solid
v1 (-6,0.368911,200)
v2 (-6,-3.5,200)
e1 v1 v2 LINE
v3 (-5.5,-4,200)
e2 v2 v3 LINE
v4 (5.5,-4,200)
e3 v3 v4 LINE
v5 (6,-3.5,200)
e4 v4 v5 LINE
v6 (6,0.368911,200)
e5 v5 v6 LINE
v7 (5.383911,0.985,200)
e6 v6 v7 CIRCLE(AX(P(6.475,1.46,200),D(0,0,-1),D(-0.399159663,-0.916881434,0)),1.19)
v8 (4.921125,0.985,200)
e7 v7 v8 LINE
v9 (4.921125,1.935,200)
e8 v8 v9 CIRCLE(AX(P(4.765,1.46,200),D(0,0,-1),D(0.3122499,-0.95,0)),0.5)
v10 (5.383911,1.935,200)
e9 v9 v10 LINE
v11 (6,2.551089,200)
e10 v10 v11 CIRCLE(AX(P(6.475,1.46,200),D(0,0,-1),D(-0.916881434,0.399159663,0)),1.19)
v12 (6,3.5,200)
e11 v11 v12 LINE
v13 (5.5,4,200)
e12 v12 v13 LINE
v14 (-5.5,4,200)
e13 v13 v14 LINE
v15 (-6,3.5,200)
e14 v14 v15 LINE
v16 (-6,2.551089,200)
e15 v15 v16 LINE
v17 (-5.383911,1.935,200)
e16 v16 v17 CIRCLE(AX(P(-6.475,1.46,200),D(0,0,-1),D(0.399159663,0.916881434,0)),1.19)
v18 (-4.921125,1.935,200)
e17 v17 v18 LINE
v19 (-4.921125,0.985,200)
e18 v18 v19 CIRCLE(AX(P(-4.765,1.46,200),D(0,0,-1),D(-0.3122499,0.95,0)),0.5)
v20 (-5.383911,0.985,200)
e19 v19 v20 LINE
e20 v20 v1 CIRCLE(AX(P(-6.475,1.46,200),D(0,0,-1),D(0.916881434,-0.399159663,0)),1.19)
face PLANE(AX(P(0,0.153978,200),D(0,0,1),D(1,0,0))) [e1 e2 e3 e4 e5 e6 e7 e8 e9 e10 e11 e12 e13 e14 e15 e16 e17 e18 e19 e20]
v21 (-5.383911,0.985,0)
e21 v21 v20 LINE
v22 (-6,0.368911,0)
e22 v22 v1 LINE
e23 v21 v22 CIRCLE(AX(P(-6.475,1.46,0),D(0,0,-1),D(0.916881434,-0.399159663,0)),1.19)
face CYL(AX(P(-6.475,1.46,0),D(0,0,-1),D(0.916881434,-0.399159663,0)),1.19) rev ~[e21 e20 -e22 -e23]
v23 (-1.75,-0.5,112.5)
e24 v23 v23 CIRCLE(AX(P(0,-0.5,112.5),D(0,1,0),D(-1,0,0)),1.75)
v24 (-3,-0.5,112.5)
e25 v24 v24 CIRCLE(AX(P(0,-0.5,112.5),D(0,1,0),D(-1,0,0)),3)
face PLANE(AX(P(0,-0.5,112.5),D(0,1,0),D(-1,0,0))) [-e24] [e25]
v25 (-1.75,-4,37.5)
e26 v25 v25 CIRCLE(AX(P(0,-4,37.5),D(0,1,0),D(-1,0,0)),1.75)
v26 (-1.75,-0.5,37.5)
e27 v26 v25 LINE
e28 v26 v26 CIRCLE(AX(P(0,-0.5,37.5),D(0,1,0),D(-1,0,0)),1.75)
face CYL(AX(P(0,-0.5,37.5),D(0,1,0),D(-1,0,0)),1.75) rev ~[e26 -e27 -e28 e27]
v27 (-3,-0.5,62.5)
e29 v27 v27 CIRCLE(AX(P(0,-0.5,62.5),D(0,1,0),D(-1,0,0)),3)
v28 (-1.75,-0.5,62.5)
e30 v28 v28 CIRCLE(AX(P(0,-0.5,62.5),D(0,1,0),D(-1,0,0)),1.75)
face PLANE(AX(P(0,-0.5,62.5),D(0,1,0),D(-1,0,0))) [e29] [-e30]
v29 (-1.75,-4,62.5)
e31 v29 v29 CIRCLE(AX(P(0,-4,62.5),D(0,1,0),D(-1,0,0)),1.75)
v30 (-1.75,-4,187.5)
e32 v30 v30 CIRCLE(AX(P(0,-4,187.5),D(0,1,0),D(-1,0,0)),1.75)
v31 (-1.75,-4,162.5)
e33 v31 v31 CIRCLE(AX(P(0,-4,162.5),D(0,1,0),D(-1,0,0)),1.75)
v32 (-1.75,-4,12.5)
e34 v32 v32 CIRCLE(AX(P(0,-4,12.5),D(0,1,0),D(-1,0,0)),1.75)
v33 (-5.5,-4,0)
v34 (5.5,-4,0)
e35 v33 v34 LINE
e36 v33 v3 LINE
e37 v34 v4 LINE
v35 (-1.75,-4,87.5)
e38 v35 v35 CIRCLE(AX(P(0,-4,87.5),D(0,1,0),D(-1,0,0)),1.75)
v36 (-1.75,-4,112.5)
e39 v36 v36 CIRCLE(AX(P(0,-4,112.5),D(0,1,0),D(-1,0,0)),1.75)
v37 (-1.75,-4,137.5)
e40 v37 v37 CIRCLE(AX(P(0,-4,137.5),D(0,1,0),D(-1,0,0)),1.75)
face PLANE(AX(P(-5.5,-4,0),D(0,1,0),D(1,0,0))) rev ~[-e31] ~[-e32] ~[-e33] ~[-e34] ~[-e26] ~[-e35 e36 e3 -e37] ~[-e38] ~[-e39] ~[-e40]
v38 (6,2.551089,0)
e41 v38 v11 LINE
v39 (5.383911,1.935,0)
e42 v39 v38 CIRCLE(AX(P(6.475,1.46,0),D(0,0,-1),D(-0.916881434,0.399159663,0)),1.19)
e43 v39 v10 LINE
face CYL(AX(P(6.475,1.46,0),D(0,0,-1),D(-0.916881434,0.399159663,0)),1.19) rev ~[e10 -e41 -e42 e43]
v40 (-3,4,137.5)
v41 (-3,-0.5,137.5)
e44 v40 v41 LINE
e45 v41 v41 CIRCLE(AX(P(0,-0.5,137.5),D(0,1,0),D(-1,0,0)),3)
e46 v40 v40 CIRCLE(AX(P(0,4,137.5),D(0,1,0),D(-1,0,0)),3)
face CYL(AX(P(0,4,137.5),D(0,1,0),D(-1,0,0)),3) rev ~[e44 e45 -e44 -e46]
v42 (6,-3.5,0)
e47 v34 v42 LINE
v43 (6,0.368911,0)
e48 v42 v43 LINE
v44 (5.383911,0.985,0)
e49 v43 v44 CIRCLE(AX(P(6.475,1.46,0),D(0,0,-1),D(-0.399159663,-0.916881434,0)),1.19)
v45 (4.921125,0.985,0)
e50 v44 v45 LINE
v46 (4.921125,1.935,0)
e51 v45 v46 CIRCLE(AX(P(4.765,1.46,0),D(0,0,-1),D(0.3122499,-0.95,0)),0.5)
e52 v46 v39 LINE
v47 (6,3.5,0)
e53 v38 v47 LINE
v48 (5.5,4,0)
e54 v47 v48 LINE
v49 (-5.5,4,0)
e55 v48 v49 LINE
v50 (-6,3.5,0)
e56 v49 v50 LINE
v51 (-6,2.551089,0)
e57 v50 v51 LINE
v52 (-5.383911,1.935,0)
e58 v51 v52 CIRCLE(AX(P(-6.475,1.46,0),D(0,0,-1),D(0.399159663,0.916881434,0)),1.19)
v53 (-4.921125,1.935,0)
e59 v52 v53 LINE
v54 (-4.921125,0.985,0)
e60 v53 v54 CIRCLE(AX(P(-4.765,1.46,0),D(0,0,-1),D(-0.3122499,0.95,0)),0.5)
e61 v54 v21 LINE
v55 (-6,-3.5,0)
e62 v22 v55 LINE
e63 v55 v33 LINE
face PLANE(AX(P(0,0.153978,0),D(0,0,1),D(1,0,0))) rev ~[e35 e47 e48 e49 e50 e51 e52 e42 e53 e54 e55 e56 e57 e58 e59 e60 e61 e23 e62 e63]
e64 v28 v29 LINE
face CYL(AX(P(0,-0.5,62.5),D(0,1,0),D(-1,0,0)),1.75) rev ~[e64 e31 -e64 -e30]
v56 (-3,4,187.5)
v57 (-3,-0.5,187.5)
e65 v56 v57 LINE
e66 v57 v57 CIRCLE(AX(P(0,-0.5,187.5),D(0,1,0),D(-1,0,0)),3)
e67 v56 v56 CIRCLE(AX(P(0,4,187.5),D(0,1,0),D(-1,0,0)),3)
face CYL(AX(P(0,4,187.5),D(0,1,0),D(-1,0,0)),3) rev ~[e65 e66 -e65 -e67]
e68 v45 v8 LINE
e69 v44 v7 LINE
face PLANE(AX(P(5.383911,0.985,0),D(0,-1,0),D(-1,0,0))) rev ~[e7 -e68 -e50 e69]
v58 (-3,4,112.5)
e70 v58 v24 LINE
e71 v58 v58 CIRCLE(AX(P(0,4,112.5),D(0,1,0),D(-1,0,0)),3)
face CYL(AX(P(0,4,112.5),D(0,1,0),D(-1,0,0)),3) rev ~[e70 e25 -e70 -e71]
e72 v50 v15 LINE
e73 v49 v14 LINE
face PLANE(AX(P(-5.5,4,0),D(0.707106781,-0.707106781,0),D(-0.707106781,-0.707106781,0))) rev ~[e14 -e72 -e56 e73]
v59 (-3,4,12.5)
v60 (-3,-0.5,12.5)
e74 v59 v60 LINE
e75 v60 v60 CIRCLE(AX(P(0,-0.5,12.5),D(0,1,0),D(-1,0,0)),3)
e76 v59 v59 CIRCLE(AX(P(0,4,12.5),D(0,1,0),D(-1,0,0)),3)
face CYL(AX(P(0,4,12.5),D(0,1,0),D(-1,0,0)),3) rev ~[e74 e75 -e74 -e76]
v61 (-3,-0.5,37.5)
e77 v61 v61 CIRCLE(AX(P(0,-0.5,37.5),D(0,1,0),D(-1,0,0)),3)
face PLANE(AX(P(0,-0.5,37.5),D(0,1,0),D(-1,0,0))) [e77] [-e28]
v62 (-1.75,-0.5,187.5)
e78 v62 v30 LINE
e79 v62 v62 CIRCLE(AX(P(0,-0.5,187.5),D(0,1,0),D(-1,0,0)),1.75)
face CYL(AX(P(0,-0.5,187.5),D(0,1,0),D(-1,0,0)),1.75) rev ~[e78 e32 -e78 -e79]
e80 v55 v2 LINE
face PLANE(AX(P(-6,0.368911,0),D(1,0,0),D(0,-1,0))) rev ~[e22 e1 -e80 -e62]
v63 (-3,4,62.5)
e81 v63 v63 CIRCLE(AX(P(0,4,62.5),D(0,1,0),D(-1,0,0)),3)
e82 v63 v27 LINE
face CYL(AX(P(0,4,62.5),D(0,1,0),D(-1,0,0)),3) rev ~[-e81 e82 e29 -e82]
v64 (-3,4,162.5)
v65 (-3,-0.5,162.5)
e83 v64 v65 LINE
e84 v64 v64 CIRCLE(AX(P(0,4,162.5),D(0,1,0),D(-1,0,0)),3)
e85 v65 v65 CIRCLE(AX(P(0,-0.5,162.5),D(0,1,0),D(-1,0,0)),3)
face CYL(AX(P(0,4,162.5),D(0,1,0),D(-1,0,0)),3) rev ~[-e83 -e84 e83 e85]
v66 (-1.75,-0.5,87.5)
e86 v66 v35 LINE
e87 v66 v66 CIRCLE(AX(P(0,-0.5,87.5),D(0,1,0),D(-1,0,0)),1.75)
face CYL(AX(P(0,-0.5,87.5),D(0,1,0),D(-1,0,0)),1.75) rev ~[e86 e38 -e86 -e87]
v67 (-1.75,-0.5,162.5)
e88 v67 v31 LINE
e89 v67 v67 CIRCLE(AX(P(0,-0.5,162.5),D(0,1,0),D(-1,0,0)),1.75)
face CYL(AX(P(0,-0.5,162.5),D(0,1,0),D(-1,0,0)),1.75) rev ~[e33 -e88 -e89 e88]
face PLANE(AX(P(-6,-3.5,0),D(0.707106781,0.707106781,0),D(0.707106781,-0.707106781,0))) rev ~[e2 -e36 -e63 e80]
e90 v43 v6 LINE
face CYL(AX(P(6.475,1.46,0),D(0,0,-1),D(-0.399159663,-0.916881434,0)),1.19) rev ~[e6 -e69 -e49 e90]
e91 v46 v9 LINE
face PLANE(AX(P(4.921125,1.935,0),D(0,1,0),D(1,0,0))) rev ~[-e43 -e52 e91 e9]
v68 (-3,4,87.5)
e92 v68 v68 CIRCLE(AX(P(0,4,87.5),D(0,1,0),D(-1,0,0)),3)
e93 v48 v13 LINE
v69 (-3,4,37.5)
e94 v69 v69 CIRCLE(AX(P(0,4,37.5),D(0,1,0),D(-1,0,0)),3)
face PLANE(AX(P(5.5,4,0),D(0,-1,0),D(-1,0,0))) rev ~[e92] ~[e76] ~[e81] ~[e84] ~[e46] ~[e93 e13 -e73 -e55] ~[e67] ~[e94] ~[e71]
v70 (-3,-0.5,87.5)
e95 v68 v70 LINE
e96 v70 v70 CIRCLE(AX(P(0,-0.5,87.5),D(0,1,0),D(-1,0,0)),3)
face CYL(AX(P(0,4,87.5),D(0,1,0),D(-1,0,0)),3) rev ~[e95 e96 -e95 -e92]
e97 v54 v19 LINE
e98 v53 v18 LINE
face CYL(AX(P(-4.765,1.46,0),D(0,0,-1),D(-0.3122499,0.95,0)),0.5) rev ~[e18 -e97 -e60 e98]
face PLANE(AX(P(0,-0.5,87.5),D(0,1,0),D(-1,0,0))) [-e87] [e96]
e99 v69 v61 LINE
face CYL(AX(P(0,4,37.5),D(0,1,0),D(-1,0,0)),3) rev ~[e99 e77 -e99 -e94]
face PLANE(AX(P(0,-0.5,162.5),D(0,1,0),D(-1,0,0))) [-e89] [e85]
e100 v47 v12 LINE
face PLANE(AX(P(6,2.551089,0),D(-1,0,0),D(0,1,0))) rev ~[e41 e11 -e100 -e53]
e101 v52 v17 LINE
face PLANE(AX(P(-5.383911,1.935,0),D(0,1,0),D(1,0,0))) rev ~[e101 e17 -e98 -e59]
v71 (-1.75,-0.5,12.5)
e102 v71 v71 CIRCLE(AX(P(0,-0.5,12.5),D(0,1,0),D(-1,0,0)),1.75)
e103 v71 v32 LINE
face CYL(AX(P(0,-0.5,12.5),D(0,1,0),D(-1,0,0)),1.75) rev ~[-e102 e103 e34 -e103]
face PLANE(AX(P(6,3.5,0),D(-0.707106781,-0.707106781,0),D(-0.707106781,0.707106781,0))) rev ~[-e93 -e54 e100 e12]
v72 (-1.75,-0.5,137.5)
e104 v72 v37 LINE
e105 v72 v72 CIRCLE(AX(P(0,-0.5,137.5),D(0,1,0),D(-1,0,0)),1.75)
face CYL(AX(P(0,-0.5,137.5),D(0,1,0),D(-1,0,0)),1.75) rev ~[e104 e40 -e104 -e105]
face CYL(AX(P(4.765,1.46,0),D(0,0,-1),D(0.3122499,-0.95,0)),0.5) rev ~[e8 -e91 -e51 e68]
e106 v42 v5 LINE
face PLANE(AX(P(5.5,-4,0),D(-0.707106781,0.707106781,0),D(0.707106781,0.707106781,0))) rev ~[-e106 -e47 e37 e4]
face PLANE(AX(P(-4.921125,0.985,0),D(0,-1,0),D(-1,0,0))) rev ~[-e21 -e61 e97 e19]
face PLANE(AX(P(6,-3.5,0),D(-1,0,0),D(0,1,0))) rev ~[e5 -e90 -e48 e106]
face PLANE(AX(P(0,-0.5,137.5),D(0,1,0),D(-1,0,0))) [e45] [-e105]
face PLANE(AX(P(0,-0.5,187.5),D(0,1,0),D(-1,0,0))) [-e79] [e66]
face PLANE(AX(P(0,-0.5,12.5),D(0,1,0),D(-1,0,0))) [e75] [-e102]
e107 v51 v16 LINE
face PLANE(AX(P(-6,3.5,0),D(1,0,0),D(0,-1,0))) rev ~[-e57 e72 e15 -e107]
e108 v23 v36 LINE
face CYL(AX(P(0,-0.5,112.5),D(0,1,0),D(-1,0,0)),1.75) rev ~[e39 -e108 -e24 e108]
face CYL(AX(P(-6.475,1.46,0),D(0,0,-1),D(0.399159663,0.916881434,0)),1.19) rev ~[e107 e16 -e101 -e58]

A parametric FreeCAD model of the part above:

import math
import FreeCAD as App
import Part
import Sketcher
from FreeCAD import Vector
Q = App.Units.Quantity

doc = App.newDocument("Part")
body = doc.addObject("PartDesign::Body", "Body")

# Sketch on XY plane
sketch1 = body.newObject("Sketcher::SketchObject", "Sketch")
sketch1.AttachmentSupport = (doc.getObject("XY_Plane"), [""])
sketch1.MapMode = "FlatFace"
sketch1.addGeometry([
    Part.LineSegment(Vector(6, -3.5, 0), Vector(6, 0.37, 0)),  # 0
    Part.ArcOfCircle(Part.Circle(Vector(6.47, 1.46, 0), Vector(0, 0, 1), 1.19), math.radians(-156), math.radians(-114)),  # 1
    Part.LineSegment(Vector(5.38, 0.98, 0), Vector(4.92, 0.98, 0)),  # 2
    Part.ArcOfCircle(Part.Circle(Vector(4.76, 1.46, 0), Vector(0, 0, 1), 0.5), math.radians(72), math.radians(288)),  # 3
    Part.LineSegment(Vector(4.92, 1.94, 0), Vector(5.38, 1.94, 0)),  # 4
    Part.ArcOfCircle(Part.Circle(Vector(6.47, 1.46, 0), Vector(0, 0, 1), 1.19), math.radians(114), math.radians(156)),  # 5
    Part.LineSegment(Vector(6, 2.55, 0), Vector(6, 3.5, 0)),  # 6
    Part.LineSegment(Vector(6, 3.5, 0), Vector(5.5, 4, 0)),  # 7
    Part.LineSegment(Vector(5.5, 4, 0), Vector(-5.5, 4, 0)),  # 8
    Part.LineSegment(Vector(-5.5, 4, 0), Vector(-6, 3.5, 0)),  # 9
    Part.LineSegment(Vector(-6, 3.5, 0), Vector(-6, 2.55, 0)),  # 10
    Part.ArcOfCircle(Part.Circle(Vector(-6.47, 1.46, 0), Vector(0, 0, 1), 1.19), math.radians(24), math.radians(66)),  # 11
    Part.LineSegment(Vector(-5.38, 1.94, 0), Vector(-4.92, 1.94, 0)),  # 12
    Part.ArcOfCircle(Part.Circle(Vector(-4.76, 1.46, 0), Vector(0, 0, 1), 0.5), math.radians(-108), math.radians(108)),  # 13
    Part.LineSegment(Vector(-4.92, 0.98, 0), Vector(-5.38, 0.98, 0)),  # 14
    Part.ArcOfCircle(Part.Circle(Vector(-6.47, 1.46, 0), Vector(0, 0, 1), 1.19), math.radians(-66), math.radians(-24)),  # 15
    Part.LineSegment(Vector(-6, 0.37, 0), Vector(-6, -3.5, 0)),  # 16
    Part.LineSegment(Vector(-6, -3.5, 0), Vector(-5.5, -4, 0)),  # 17
    Part.LineSegment(Vector(-5.5, -4, 0), Vector(5.5, -4, 0)),  # 18
    Part.LineSegment(Vector(5.5, -4, 0), Vector(6, -3.5, 0)),  # 19
], False)
sketch1.addConstraint([
    Sketcher.Constraint("Coincident", 0, 2, 1, 2),
    Sketcher.Constraint("Coincident", 1, 1, 2, 1),
    Sketcher.Constraint("Coincident", 2, 2, 3, 2),
    Sketcher.Constraint("Coincident", 3, 1, 4, 1),
    Sketcher.Constraint("Coincident", 4, 2, 5, 2),
    Sketcher.Constraint("Coincident", 5, 1, 6, 1),
    Sketcher.Constraint("Coincident", 6, 2, 7, 1),
    Sketcher.Constraint("Coincident", 7, 2, 8, 1),
    Sketcher.Constraint("Coincident", 8, 2, 9, 1),
    Sketcher.Constraint("Coincident", 9, 2, 10, 1),
    Sketcher.Constraint("Coincident", 10, 2, 11, 2),
    Sketcher.Constraint("Coincident", 11, 1, 12, 1),
    Sketcher.Constraint("Coincident", 12, 2, 13, 2),
    Sketcher.Constraint("Coincident", 13, 1, 14, 1),
    Sketcher.Constraint("Coincident", 14, 2, 15, 2),
    Sketcher.Constraint("Coincident", 15, 1, 16, 1),
    Sketcher.Constraint("Coincident", 16, 2, 17, 1),
    Sketcher.Constraint("Coincident", 17, 2, 18, 1),
    Sketcher.Constraint("Coincident", 18, 2, 19, 1),
    Sketcher.Constraint("Coincident", 19, 2, 0, 1),
    Sketcher.Constraint("Vertical", 0),
    Sketcher.Constraint("Horizontal", 2),
    Sketcher.Constraint("Horizontal", 4),
    Sketcher.Constraint("Vertical", 6),
    Sketcher.Constraint("Horizontal", 8),
    Sketcher.Constraint("Vertical", 10),
    Sketcher.Constraint("Horizontal", 12),
    Sketcher.Constraint("Horizontal", 14),
    Sketcher.Constraint("Vertical", 16),
    Sketcher.Constraint("Horizontal", 18),
    Sketcher.Constraint("Coincident", 5, 3, 1, 3),
    Sketcher.Constraint("Coincident", 15, 3, 11, 3),
    Sketcher.Constraint("Equal", 1, 5),
    Sketcher.Constraint("Equal", 5, 11),
    Sketcher.Constraint("Equal", 3, 13),
    Sketcher.Constraint("Equal", 11, 15),
    Sketcher.Constraint("Symmetric", 6, 2, 16, 2, -1, 1),
    Sketcher.Constraint("Symmetric", 7, 2, 17, 2, -1, 1),
    Sketcher.Constraint("Symmetric", 9, 2, 19, 2, -1, 1),
    Sketcher.Constraint("Symmetric", 1, 3, 11, 3, -2),
    Sketcher.Constraint("Symmetric", 3, 3, 13, 3, -2),
    Sketcher.Constraint("Symmetric", 6, 2, 9, 2, -2),
    Sketcher.Constraint("Perpendicular", 7, 9),
    Sketcher.Constraint("Perpendicular", 17, 19),
    Sketcher.Constraint("Horizontal", 1, 3, 3, 3),
    Sketcher.Constraint("Horizontal", 4, 2, 11, 1),
    Sketcher.Constraint("Horizontal", 2, 2, 13, 1),
    Sketcher.Constraint("Vertical", 2, 2, 3, 1),
    Sketcher.Constraint("Vertical", 8, 2, 17, 2),
    Sketcher.Constraint("Radius", 3, Q("0.5 mm")),
    Sketcher.Constraint("DistanceX", 8, 2, 8, 1, Q("11 mm")),
    Sketcher.Constraint("Radius", 1, Q("1.19 mm")),
    Sketcher.Constraint("DistanceX", -1, 1, 0, 2, Q("6 mm")),
    Sketcher.Constraint("DistanceY", -1, 1, 7, 2, Q("4 mm")),
    Sketcher.Constraint("DistanceY", -1, 1, 1, 3, Q("1.46 mm")),
    Sketcher.Constraint("DistanceX", 3, 3, 1, 3, Q("1.71 mm")),
    Sketcher.Constraint("DistanceX", 11, 3, 3, 3, Q("11.24 mm")),
    Sketcher.Constraint("DistanceY", 2, 2, 3, 1, Q("0.95 mm")),
])
pad1 = body.newObject("PartDesign::Pad", "Pad")
pad1.Profile = sketch1
pad1.Length = 200

# Sketch on XZ plane
sketch2 = body.newObject("Sketcher::SketchObject", "Sketch001")
sketch2.AttachmentSupport = (doc.getObject("XZ_Plane"), [""])
sketch2.MapMode = "FlatFace"
sketch2.AttachmentOffset = App.Placement(Vector(0, 0, -4), App.Rotation())
sketch2.addGeometry(Part.Circle(Vector(0, 12.5, 0), Vector(0, 0, 1), 3), False)
sketch2.addConstraint([
    Sketcher.Constraint("PointOnObject", 0, 3, -2),
    Sketcher.Constraint("Diameter", 0, Q("6 mm")),
    Sketcher.Constraint("DistanceY", -1, 1, 0, 3, Q("12.5 mm")),
])
pocket1 = body.newObject("PartDesign::Pocket", "Pocket")
pocket1.Profile = sketch2
pocket1.Length = 4.5
pocket1.Reversed = True

# Sketch on XZ plane
sketch3 = body.newObject("Sketcher::SketchObject", "Sketch002")
sketch3.AttachmentSupport = (doc.getObject("XZ_Plane"), [""])
sketch3.MapMode = "FlatFace"
sketch3.AttachmentOffset = App.Placement(Vector(0, 0, 0.5), App.Rotation())
sketch3.addGeometry(Part.Circle(Vector(0, 12.5, 0), Vector(0, 0, 1), 1.8), False)
sketch3.addConstraint([
    Sketcher.Constraint("PointOnObject", 0, 3, -2),
    Sketcher.Constraint("Diameter", 0, Q("3.5 mm")),
    Sketcher.Constraint("DistanceY", -1, 1, 0, 3, Q("12.5 mm")),
])
pocket2 = body.newObject("PartDesign::Pocket", "Pocket001")
pocket2.Profile = sketch3
pocket2.Type = "ThroughAll"
pocket2.Reversed = True
doc.recompute()

linearpattern = body.newObject("PartDesign::LinearPattern", "LinearPattern")
linearpattern.Originals = [pocket1, pocket2]
linearpattern.Direction = (doc.getObject("Z_Axis"), [""])
linearpattern.Mode = "offset"
linearpattern.Offset = 25
linearpattern.Occurrences = 8
body.Tip = linearpattern

doc.recompute()
